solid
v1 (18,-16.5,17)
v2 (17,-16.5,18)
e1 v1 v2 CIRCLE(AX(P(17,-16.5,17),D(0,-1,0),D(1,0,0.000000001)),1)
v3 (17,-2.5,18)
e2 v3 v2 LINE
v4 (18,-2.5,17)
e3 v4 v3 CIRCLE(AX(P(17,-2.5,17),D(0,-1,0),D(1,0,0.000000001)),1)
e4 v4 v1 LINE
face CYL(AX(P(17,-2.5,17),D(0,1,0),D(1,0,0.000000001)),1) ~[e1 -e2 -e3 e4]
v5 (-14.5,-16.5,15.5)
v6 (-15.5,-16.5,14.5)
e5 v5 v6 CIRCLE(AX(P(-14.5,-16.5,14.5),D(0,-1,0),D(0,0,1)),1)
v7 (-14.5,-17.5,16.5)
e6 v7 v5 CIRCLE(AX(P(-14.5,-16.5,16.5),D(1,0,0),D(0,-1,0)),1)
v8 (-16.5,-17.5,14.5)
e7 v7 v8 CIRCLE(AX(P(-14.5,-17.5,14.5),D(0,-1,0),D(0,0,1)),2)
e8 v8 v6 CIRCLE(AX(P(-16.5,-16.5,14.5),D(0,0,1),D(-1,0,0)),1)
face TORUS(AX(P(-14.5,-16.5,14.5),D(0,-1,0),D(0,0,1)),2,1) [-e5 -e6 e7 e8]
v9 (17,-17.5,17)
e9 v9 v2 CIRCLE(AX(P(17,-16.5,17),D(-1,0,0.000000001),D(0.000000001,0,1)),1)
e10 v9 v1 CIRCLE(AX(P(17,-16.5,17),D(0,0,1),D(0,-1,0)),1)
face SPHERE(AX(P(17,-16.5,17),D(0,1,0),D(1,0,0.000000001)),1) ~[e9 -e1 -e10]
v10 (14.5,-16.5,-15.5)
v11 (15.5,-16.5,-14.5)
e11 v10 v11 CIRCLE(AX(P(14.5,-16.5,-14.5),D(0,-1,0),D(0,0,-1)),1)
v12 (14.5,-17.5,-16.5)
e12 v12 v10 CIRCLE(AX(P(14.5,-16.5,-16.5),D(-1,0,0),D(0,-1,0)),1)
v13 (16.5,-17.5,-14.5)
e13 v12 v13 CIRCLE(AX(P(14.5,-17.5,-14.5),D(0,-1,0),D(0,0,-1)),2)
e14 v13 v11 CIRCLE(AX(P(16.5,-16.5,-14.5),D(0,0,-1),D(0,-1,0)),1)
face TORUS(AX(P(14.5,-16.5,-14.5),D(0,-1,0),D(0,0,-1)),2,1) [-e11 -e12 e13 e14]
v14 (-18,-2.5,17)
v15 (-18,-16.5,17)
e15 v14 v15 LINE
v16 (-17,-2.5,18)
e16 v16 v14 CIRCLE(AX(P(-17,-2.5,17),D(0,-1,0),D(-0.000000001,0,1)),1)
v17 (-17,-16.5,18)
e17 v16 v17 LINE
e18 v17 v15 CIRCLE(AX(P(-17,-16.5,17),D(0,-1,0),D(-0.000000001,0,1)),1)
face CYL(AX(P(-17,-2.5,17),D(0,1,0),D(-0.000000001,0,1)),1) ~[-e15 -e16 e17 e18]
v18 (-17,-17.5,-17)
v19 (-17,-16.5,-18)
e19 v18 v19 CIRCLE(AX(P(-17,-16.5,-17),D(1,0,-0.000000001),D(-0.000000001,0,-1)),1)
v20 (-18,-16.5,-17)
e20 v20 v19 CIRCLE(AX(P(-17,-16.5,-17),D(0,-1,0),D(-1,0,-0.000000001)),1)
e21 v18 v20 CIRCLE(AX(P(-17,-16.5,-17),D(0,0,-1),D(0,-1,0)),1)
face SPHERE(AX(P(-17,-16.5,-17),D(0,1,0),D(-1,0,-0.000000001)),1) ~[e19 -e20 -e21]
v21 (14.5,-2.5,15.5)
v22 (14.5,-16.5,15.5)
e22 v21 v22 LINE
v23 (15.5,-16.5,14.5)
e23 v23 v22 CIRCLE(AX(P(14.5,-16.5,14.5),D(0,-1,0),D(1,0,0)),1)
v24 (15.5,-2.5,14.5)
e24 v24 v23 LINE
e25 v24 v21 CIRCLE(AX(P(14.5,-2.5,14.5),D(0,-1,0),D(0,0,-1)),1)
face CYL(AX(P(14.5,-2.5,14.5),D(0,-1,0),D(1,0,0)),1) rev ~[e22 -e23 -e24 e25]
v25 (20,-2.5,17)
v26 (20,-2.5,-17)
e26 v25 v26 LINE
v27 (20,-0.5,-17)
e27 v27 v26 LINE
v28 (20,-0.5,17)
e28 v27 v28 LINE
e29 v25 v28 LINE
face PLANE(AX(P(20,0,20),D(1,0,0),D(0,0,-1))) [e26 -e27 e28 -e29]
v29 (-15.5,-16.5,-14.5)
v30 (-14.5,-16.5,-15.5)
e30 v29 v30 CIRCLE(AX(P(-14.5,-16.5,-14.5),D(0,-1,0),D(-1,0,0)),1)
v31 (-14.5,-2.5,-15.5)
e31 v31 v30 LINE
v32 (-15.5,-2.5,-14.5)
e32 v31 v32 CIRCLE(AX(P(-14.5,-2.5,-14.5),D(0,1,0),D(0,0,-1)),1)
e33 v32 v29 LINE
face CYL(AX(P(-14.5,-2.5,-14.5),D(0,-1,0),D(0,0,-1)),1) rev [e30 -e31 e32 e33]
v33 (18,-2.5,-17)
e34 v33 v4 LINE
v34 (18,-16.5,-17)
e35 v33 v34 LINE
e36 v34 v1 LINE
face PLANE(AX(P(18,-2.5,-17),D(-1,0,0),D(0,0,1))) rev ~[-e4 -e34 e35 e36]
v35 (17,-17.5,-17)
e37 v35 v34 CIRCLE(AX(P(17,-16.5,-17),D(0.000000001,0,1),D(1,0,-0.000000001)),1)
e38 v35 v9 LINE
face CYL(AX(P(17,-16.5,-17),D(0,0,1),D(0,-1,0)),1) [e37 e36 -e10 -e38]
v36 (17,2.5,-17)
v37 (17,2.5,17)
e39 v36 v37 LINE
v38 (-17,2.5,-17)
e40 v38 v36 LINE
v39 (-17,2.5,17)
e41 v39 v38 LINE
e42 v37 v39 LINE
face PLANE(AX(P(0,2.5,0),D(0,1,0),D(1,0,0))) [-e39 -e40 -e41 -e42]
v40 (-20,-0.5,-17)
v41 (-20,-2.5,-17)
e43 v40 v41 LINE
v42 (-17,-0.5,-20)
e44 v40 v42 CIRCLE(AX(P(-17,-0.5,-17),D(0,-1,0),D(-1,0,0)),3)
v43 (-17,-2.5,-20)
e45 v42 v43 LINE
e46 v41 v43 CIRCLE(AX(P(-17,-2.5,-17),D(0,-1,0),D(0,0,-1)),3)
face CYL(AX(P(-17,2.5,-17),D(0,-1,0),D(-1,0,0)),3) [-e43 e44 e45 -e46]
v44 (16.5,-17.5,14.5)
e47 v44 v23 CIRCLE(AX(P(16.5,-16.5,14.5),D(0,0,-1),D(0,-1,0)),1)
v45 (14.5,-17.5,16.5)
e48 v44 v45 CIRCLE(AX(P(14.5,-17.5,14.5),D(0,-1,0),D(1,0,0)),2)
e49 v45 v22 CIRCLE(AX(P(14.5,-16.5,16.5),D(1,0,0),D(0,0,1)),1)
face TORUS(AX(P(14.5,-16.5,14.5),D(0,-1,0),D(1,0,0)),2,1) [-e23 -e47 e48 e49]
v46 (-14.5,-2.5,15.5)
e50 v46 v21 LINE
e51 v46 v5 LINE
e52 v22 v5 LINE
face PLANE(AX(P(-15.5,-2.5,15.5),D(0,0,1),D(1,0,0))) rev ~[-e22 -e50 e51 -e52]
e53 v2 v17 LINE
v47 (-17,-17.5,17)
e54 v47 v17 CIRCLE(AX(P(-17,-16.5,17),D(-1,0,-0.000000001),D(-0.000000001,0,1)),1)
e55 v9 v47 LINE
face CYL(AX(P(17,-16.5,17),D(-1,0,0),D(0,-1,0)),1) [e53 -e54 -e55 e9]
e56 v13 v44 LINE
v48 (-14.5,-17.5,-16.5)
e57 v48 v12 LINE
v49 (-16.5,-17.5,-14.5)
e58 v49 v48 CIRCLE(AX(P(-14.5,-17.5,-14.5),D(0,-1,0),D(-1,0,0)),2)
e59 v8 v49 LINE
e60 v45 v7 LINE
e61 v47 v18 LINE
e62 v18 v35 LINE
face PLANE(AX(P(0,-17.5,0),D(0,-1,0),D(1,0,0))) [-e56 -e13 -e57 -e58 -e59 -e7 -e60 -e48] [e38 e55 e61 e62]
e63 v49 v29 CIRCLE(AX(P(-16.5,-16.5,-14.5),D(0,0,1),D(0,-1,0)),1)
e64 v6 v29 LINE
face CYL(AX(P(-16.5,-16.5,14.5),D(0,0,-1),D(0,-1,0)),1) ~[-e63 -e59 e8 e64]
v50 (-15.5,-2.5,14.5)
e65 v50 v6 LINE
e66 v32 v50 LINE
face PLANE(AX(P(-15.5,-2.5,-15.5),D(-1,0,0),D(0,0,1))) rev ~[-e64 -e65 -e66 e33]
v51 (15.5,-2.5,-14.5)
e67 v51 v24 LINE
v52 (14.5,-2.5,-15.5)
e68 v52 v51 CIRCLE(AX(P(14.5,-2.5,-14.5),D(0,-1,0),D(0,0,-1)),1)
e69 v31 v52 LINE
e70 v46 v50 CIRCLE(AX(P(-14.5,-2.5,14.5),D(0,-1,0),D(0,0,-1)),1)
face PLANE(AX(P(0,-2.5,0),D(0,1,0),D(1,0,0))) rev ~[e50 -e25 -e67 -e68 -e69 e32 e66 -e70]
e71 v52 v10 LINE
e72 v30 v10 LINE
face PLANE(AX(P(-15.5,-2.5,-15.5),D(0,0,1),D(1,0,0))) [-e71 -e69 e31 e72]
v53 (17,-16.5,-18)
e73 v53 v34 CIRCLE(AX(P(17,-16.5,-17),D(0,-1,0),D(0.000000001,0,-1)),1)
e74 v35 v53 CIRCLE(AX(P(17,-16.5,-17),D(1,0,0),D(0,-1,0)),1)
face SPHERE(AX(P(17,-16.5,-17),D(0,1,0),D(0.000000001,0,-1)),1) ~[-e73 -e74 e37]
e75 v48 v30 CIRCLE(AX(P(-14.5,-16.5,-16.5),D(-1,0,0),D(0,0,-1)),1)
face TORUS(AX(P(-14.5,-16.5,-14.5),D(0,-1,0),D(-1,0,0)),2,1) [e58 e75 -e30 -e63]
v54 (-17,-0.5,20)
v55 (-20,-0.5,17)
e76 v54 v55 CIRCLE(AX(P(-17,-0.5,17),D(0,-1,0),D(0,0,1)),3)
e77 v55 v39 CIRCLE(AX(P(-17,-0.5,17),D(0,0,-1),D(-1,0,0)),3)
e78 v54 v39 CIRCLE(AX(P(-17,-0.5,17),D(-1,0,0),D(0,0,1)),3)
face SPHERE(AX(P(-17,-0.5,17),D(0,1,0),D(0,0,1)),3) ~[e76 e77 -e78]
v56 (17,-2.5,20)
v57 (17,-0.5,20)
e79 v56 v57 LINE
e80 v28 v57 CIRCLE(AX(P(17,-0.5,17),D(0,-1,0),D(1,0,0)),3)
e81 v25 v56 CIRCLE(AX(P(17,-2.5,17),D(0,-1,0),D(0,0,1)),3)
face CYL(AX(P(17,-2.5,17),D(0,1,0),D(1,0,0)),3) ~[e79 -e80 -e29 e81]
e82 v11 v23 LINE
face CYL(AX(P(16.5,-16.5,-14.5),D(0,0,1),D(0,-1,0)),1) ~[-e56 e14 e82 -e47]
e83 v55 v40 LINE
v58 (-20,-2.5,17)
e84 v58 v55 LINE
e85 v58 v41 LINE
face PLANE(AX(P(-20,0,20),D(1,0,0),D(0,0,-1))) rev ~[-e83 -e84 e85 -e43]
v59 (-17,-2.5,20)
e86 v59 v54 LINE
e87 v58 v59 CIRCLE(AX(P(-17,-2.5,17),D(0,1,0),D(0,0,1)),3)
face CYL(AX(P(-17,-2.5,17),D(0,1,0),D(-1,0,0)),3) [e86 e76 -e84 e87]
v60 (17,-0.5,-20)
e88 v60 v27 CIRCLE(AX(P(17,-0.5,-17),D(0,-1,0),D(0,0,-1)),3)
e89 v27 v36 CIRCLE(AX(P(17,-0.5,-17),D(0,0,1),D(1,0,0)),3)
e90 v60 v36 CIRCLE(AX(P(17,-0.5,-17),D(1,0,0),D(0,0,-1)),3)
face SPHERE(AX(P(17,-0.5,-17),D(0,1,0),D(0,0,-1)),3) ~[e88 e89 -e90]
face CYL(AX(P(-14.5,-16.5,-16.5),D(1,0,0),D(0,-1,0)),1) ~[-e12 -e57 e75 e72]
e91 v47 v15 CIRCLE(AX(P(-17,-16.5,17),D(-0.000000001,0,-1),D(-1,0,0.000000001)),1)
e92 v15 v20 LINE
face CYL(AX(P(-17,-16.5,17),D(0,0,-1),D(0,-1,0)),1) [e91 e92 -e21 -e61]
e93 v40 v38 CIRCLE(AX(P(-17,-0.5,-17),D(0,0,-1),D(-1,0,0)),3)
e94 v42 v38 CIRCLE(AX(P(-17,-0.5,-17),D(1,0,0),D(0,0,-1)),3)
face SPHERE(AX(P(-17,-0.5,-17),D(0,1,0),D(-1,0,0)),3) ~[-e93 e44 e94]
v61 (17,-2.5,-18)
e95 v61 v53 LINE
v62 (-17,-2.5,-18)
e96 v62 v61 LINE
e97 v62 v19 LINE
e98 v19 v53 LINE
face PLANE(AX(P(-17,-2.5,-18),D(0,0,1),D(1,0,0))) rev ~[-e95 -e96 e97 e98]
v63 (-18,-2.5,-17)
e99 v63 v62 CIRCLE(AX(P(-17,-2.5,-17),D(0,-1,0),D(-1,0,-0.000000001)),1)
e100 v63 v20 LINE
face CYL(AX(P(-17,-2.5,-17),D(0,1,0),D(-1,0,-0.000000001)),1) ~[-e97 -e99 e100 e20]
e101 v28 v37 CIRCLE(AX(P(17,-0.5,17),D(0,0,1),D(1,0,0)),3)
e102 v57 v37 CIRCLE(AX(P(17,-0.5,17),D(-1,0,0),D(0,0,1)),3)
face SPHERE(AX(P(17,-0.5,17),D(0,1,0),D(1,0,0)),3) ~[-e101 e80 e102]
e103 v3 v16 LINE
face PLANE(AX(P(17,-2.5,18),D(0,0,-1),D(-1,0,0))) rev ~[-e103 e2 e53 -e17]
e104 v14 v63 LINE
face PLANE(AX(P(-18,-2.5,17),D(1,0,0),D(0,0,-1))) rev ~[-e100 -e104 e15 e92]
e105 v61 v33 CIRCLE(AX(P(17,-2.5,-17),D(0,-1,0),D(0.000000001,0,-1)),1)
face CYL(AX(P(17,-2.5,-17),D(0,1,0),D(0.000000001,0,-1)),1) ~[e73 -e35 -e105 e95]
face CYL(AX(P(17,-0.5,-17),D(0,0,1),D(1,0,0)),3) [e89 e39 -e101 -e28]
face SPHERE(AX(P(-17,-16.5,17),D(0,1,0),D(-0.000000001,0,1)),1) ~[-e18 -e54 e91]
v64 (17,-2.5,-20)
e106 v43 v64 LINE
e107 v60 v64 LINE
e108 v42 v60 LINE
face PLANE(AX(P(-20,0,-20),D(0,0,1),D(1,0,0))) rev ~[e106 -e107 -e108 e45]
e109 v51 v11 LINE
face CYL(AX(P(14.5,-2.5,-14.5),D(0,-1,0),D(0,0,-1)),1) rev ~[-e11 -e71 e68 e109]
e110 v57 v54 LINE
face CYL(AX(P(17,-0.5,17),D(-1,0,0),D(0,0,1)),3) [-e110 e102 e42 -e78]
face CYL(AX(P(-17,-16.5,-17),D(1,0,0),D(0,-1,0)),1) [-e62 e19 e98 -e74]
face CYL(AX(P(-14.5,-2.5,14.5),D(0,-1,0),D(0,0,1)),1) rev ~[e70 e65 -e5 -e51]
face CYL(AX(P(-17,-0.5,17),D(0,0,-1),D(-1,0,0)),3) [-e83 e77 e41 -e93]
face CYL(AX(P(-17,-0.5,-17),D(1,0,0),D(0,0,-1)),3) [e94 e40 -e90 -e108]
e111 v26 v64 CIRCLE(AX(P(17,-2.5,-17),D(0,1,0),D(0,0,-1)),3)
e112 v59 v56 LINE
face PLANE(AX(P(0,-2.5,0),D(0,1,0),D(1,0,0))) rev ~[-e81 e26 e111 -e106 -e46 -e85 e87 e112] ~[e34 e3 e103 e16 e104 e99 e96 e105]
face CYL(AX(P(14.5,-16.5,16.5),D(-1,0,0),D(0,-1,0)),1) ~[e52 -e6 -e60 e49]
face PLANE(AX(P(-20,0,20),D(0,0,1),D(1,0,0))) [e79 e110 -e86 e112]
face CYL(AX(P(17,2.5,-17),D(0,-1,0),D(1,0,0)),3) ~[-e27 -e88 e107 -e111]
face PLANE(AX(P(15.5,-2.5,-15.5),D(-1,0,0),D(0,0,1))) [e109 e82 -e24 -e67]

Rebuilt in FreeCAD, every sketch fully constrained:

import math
import FreeCAD as App
import Part
import Sketcher
from FreeCAD import Vector
Q = App.Units.Quantity


def edges_at(feature, points):
    """Names of the edges that pass closest to the given points."""
    edges = feature.Shape.Edges
    near = lambda p: min(range(len(edges)), key=lambda i: edges[i].distToShape(Part.Vertex(*p))[0])
    return sorted({f"Edge{near(p) + 1}" for p in points})

doc = App.newDocument("Part")
body = doc.addObject("PartDesign::Body", "Body")

# Sketch on XZ plane
sketch1 = body.newObject("Sketcher::SketchObject", "Sketch")
sketch1.AttachmentSupport = (doc.getObject("XZ_Plane"), [""])
sketch1.MapMode = "FlatFace"
sketch1.addGeometry([
    Part.LineSegment(Vector(-20, -20, 0), Vector(-20, 20, 0)),
    Part.LineSegment(Vector(-20, 20, 0), Vector(20, 20, 0)),
    Part.LineSegment(Vector(20, 20, 0), Vector(20, -20, 0)),
    Part.LineSegment(Vector(20, -20, 0), Vector(-20, -20, 0)),
], False)
sketch1.addConstraint([
    Sketcher.Constraint("Coincident", 0, 2, 1, 1),
    Sketcher.Constraint("Coincident", 1, 2, 2, 1),
    Sketcher.Constraint("Coincident", 2, 2, 3, 1),
    Sketcher.Constraint("Coincident", 3, 2, 0, 1),
    Sketcher.Constraint("Vertical", 0),
    Sketcher.Constraint("Horizontal", 1),
    Sketcher.Constraint("Vertical", 2),
    Sketcher.Constraint("Horizontal", 3),
    Sketcher.Constraint("Symmetric", 0, 2, 2, 2, -1, 1),
    Sketcher.Constraint("Equal", 3, 0),
    Sketcher.Constraint("DistanceX", 1, 1, 1, 2, Q("40 mm")),
])
pad1 = body.newObject("PartDesign::Pad", "Pad")
pad1.Profile = sketch1
pad1.Length = 5
pad1.Midplane = True
doc.recompute()

fillet = body.newObject("PartDesign::Fillet", "Fillet")
fillet.Base = (pad1, edges_at(pad1, [
    (-20, 0, -20),
    (20, 0, -20),
    (20, 0, 20),
    (-20, 0, 20),
]))
fillet.Radius = 3
doc.recompute()

fillet2 = body.newObject("PartDesign::Fillet", "Fillet001")
fillet2.Base = (fillet, edges_at(fillet, [
    (-20, 2.5, 0),
    (0, 2.5, -20),
    (0, 2.5, 20),
    (20, 2.5, 0),
    (19.121, 2.5, 19.121),
    (-19.121, 2.5, 19.121),
    (19.121, 2.5, -19.121),
    (-19.121, 2.5, -19.121),
]))
fillet2.Radius = 3

# Sketch on XZ plane
sketch2 = body.newObject("Sketcher::SketchObject", "Sketch001")
sketch2.AttachmentSupport = (doc.getObject("XZ_Plane"), [""])
sketch2.MapMode = "FlatFace"
sketch2.AttachmentOffset = App.Placement(Vector(0, 0, 2.5), App.Rotation())
sketch2.addGeometry([
    Part.LineSegment(Vector(-18, 17, 0), Vector(-18, -17, 0)),  # 0
    Part.ArcOfCircle(Part.Circle(Vector(-17, -17, 0), Vector(0, 0, 1), 1), math.radians(-180), math.radians(-90)),  # 1
    Part.LineSegment(Vector(-17, -18, 0), Vector(17, -18, 0)),  # 2
    Part.ArcOfCircle(Part.Circle(Vector(17, -17, 0), Vector(0, 0, 1), 1), math.radians(-90), math.radians(0)),  # 3
    Part.LineSegment(Vector(18, -17, 0), Vector(18, 17, 0)),  # 4
    Part.ArcOfCircle(Part.Circle(Vector(17, 17, 0), Vector(0, 0, 1), 1), math.radians(0), math.radians(90)),  # 5
    Part.LineSegment(Vector(17, 18, 0), Vector(-17, 18, 0)),  # 6
    Part.ArcOfCircle(Part.Circle(Vector(-17, 17, 0), Vector(0, 0, 1), 1), math.radians(90), math.radians(180)),  # 7
    Part.LineSegment(Vector(15.5, -15.5, 0), Vector(-15.5, -15.5, 0)),  # 8
    Part.LineSegment(Vector(-15.5, -15.5, 0), Vector(-15.5, 15.5, 0)),  # 9
    Part.LineSegment(Vector(-15.5, 15.5, 0), Vector(15.5, 15.5, 0)),  # 10
    Part.LineSegment(Vector(15.5, 15.5, 0), Vector(15.5, -15.5, 0)),  # 11
], False)
sketch2.addConstraint([
    Sketcher.Constraint("Tangent", 0, 2, 1, 1),
    Sketcher.Constraint("Tangent", 1, 2, 2, 1),
    Sketcher.Constraint("Tangent", 2, 2, 3, 1),
    Sketcher.Constraint("Tangent", 3, 2, 4, 1),
    Sketcher.Constraint("Tangent", 4, 2, 5, 1),
    Sketcher.Constraint("Tangent", 5, 2, 6, 1),
    Sketcher.Constraint("Tangent", 6, 2, 7, 1),
    Sketcher.Constraint("Tangent", 7, 2, 0, 1),
    Sketcher.Constraint("Coincident", 8, 2, 9, 1),
    Sketcher.Constraint("Coincident", 9, 2, 10, 1),
    Sketcher.Constraint("Coincident", 10, 2, 11, 1),
    Sketcher.Constraint("Coincident", 11, 2, 8, 1),
    Sketcher.Constraint("Vertical", 0),
    Sketcher.Constraint("Horizontal", 2),
    Sketcher.Constraint("Vertical", 4),
    Sketcher.Constraint("Horizontal", 6),
    Sketcher.Constraint("Horizontal", 8),
    Sketcher.Constraint("Vertical", 9),
    Sketcher.Constraint("Horizontal", 10),
    Sketcher.Constraint("Vertical", 11),
    Sketcher.Constraint("Equal", 1, 3),
    Sketcher.Constraint("Equal", 3, 5),
    Sketcher.Constraint("Equal", 5, 7),
    Sketcher.Constraint("Symmetric", 1, 3, 5, 3, -1, 1),
    Sketcher.Constraint("Symmetric", 8, 2, 10, 2, -1, 1),
    Sketcher.Constraint("Equal", 6, 0),
    Sketcher.Constraint("Equal", 10, 9),
    Sketcher.Constraint("Radius", 1, Q("1 mm")),
    Sketcher.Constraint("DistanceX", 2, 1, 2, 2, Q("34 mm")),
    Sketcher.Constraint("DistanceX", 8, 2, 8, 1, Q("31 mm")),
])
pad2 = body.newObject("PartDesign::Pad", "Pad001")
pad2.Profile = sketch2
pad2.Length = 15
doc.recompute()

fillet3 = body.newObject("PartDesign::Fillet", "Fillet002")
fillet3.Base = (pad2, edges_at(pad2, [
    (-15.5, -10, 15.5),
    (-15.5, -10, -15.5),
    (15.5, -10, -15.5),
    (15.5, -10, 15.5),
]))
fillet3.Radius = 1
doc.recompute()

fillet4 = body.newObject("PartDesign::Fillet", "Fillet003")
fillet4.Base = (fillet3, edges_at(fillet3, [
    (15.5, -17.5, 0),
    (-15.5, -17.5, 0),
    (0, -17.5, 15.5),
    (15.207, -17.5, -15.207),
    (-15.207, -17.5, -15.207),
    (15.207, -17.5, 15.207),
    (-15.207, -17.5, 15.207),
    (-17.707, -17.5, 17.707),
    (-18, -17.5, 0),
    (-17.707, -17.5, -17.707),
    (0, -17.5, -18),
    (17.707, -17.5, -17.707),
    (18, -17.5, 0),
    (17.707, -17.5, 17.707),
    (0, -17.5, 18),
    (0, -17.5, -15.5),
]))
fillet4.Radius = 1

doc.recompute()
